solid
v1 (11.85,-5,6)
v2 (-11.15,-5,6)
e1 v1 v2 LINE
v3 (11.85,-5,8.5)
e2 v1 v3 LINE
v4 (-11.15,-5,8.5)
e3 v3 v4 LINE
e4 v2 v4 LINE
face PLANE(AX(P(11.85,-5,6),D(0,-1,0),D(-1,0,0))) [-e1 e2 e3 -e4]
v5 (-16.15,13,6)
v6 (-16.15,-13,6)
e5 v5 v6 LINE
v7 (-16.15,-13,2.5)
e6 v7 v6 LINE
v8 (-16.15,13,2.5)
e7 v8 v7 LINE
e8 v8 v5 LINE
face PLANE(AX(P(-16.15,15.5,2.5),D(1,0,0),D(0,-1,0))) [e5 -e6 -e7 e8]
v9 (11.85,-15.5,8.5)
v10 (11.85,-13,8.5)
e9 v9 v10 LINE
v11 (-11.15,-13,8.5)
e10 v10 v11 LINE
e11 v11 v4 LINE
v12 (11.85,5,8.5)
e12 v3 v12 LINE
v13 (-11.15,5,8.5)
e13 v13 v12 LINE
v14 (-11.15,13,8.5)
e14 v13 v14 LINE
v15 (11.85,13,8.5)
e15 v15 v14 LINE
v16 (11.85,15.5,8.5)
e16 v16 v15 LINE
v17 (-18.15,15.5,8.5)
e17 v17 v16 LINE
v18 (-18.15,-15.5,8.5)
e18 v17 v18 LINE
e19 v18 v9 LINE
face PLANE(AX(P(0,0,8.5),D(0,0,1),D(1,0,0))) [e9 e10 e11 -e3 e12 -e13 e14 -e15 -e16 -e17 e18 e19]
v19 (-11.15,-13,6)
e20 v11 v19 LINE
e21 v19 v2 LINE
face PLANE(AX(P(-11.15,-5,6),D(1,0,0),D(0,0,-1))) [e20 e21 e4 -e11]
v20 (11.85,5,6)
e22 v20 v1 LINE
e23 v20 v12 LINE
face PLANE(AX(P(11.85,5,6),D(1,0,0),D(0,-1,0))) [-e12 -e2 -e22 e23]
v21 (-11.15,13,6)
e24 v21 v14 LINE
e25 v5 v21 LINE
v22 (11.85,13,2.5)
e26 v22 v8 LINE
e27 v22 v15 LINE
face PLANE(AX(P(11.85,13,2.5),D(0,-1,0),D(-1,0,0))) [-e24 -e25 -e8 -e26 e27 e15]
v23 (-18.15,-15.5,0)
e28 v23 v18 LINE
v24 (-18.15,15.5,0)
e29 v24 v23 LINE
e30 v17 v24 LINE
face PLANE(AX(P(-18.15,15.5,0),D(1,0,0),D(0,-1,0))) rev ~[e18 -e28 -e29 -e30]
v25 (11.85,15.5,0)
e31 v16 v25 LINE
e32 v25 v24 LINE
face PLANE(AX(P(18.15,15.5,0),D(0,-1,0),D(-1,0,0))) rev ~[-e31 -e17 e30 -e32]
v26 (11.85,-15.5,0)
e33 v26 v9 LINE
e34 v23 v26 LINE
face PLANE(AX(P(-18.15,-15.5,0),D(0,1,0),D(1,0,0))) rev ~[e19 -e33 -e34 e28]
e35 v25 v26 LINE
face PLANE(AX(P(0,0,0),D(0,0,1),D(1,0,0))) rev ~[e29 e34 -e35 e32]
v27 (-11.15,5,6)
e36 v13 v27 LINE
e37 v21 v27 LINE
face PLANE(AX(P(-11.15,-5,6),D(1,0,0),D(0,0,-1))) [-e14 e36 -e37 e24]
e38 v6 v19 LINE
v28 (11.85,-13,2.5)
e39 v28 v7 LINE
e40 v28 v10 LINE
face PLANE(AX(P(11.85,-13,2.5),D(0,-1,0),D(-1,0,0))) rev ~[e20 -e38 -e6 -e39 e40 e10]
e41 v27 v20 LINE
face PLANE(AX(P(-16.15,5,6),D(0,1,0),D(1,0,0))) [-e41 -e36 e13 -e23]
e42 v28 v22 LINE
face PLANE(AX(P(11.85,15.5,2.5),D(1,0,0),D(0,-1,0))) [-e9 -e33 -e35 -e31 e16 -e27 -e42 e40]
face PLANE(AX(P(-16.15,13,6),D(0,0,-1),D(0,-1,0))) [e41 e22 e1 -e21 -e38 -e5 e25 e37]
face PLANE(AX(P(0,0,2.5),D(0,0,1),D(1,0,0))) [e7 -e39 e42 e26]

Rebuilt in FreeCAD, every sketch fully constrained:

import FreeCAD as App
import Part
import Sketcher

V = App.Vector
Q = App.Units.Quantity

doc = App.newDocument("Part")
body = doc.addObject("PartDesign::Body", "Body")

sketch1 = body.newObject("Sketcher::SketchObject", "Sketch")
sketch1.AttachmentSupport = (doc.getObject("XY_Plane"), [""])
sketch1.MapMode = "FlatFace"
sketch1.addGeometry(Part.LineSegment(V(-18, 16, 0), V(-18, -16, 0)), False)
sketch1.addGeometry(Part.LineSegment(V(-18, -16, 0), V(18, -16, 0)), False)
sketch1.addGeometry(Part.LineSegment(V(18, -16, 0), V(18, 16, 0)), False)
sketch1.addGeometry(Part.LineSegment(V(18, 16, 0), V(-18, 16, 0)), False)
sketch1.addConstraint(Sketcher.Constraint("Coincident", 0, 2, 1, 1))
sketch1.addConstraint(Sketcher.Constraint("Coincident", 1, 2, 2, 1))
sketch1.addConstraint(Sketcher.Constraint("Coincident", 2, 2, 3, 1))
sketch1.addConstraint(Sketcher.Constraint("Coincident", 3, 2, 0, 1))
sketch1.addConstraint(Sketcher.Constraint("Vertical", 0))
sketch1.addConstraint(Sketcher.Constraint("Horizontal", 1))
sketch1.addConstraint(Sketcher.Constraint("Vertical", 2))
sketch1.addConstraint(Sketcher.Constraint("Horizontal", 3))
sketch1.addConstraint(Sketcher.Constraint("Symmetric", 0, 2, 2, 2, -1, 1))
sketch1.addConstraint(Sketcher.Constraint("DistanceY", 0, 2, 0, 1, Q("31 mm")))
sketch1.addConstraint(Sketcher.Constraint("DistanceX", 1, 1, 1, 2, Q("36.3 mm")))
pad1 = body.newObject("PartDesign::Pad", "Pad")
pad1.Profile = sketch1
pad1.Length = 2.5

sketch2 = body.newObject("Sketcher::SketchObject", "Sketch001")
sketch2.AttachmentSupport = (doc.getObject("XY_Plane"), [""])
sketch2.MapMode = "FlatFace"
sketch2.AttachmentOffset = App.Placement(V(0, 0, 2.5), App.Rotation())
sketch2.addGeometry(Part.LineSegment(V(-18.1, -15.5, 0), V(-16.1, -15.5, 0)), False)
sketch2.addGeometry(Part.LineSegment(V(-16.1, -15.5, 0), V(-16.1, 15.5, 0)), False)
sketch2.addGeometry(Part.LineSegment(V(-16.1, 15.5, 0), V(-18.1, 15.5, 0)), False)
sketch2.addGeometry(Part.LineSegment(V(-18.1, 15.5, 0), V(-18.1, -15.5, 0)), False)
sketch2.addConstraint(Sketcher.Constraint("Coincident", 0, 2, 1, 1))
sketch2.addConstraint(Sketcher.Constraint("Coincident", 1, 2, 2, 1))
sketch2.addConstraint(Sketcher.Constraint("Coincident", 2, 2, 3, 1))
sketch2.addConstraint(Sketcher.Constraint("Coincident", 3, 2, 0, 1))
sketch2.addConstraint(Sketcher.Constraint("Horizontal", 0))
sketch2.addConstraint(Sketcher.Constraint("Vertical", 1))
sketch2.addConstraint(Sketcher.Constraint("Horizontal", 2))
sketch2.addConstraint(Sketcher.Constraint("Vertical", 3))
sketch2.addConstraint(Sketcher.Constraint("DistanceX", 0, 1, 0, 2, Q("2 mm")))
sketch2.addConstraint(Sketcher.Constraint("DistanceY", 1, 1, 1, 2, Q("31 mm")))
sketch2.addConstraint(Sketcher.Constraint("DistanceY", 0, 2, -1, 1, Q("15.5 mm")))
sketch2.addConstraint(Sketcher.Constraint("DistanceX", 0, 2, -1, 1, Q("16.15 mm")))
pad2 = body.newObject("PartDesign::Pad", "Pad001")
pad2.Profile = sketch2
pad2.Length = 3.5

sketch3 = body.newObject("Sketcher::SketchObject", "Sketch002")
sketch3.AttachmentSupport = (doc.getObject("XY_Plane"), [""])
sketch3.MapMode = "FlatFace"
sketch3.AttachmentOffset = App.Placement(V(0, 0, 6), App.Rotation())
sketch3.addGeometry(Part.LineSegment(V(-16.1, 5, 0), V(-16.1, 15.5, 0)), False)
sketch3.addGeometry(Part.LineSegment(V(-16.1, 15.5, 0), V(-18.1, 15.5, 0)), False)
sketch3.addGeometry(Part.LineSegment(V(-18.1, 15.5, 0), V(-18.1, -15.5, 0)), False)
sketch3.addGeometry(Part.LineSegment(V(-18.1, -15.5, 0), V(-16.1, -15.5, 0)), False)
sketch3.addGeometry(Part.LineSegment(V(-16.1, -15.5, 0), V(-16.1, -5, 0)), False)
sketch3.addGeometry(Part.LineSegment(V(-16.1, -5, 0), V(11.8, -5, 0)), False)
sketch3.addGeometry(Part.LineSegment(V(11.8, -5, 0), V(11.8, 5, 0)), False)
sketch3.addGeometry(Part.LineSegment(V(11.8, 5, 0), V(-16.1, 5, 0)), False)
sketch3.addConstraint(Sketcher.Constraint("Coincident", 0, 2, 1, 1))
sketch3.addConstraint(Sketcher.Constraint("Coincident", 1, 2, 2, 1))
sketch3.addConstraint(Sketcher.Constraint("Coincident", 2, 2, 3, 1))
sketch3.addConstraint(Sketcher.Constraint("Coincident", 3, 2, 4, 1))
sketch3.addConstraint(Sketcher.Constraint("Coincident", 4, 2, 5, 1))
sketch3.addConstraint(Sketcher.Constraint("Coincident", 5, 2, 6, 1))
sketch3.addConstraint(Sketcher.Constraint("Coincident", 6, 2, 7, 1))
sketch3.addConstraint(Sketcher.Constraint("Coincident", 7, 2, 0, 1))
sketch3.addConstraint(Sketcher.Constraint("Vertical", 0))
sketch3.addConstraint(Sketcher.Constraint("Horizontal", 1))
sketch3.addConstraint(Sketcher.Constraint("Vertical", 2))
sketch3.addConstraint(Sketcher.Constraint("Horizontal", 3))
sketch3.addConstraint(Sketcher.Constraint("Vertical", 4))
sketch3.addConstraint(Sketcher.Constraint("Horizontal", 5))
sketch3.addConstraint(Sketcher.Constraint("Vertical", 6))
sketch3.addConstraint(Sketcher.Constraint("Horizontal", 7))
sketch3.addConstraint(Sketcher.Constraint("Symmetric", 0, 2, 3, 2, -1))
sketch3.addConstraint(Sketcher.Constraint("Equal", 0, 4))
sketch3.addConstraint(Sketcher.Constraint("DistanceY", 6, 1, 6, 2, Q("10 mm")))
sketch3.addConstraint(Sketcher.Constraint("DistanceX", 2, 2, 5, 2, Q("30 mm")))
sketch3.addConstraint(Sketcher.Constraint("DistanceX", 1, 2, 1, 1, Q("2 mm")))
sketch3.addConstraint(Sketcher.Constraint("DistanceY", 2, 2, 2, 1, Q("31 mm")))
sketch3.addConstraint(Sketcher.Constraint("DistanceX", 0, 2, -1, 1, Q("16.15 mm")))
pad3 = body.newObject("PartDesign::Pad", "Pad002")
pad3.Profile = sketch3
pad3.Length = 2.5

sketch4 = body.newObject("Sketcher::SketchObject", "Sketch003")
sketch4.AttachmentSupport = (doc.getObject("XY_Plane"), [""])
sketch4.MapMode = "FlatFace"
sketch4.AttachmentOffset = App.Placement(V(0, 0, 2.5), App.Rotation())
sketch4.addGeometry(Part.LineSegment(V(11.8, 15.5, 0), V(-16.1, 15.5, 0)), False)
sketch4.addGeometry(Part.LineSegment(V(-16.1, 15.5, 0), V(-16.1, 13, 0)), False)
sketch4.addGeometry(Part.LineSegment(V(-16.1, 13, 0), V(11.8, 13, 0)), False)
sketch4.addGeometry(Part.LineSegment(V(11.8, 13, 0), V(11.8, 15.5, 0)), False)
sketch4.addGeometry(Part.LineSegment(V(11.8, -13, 0), V(-16.1, -13, 0)), False)
sketch4.addGeometry(Part.LineSegment(V(-16.1, -13, 0), V(-16.1, -15.5, 0)), False)
sketch4.addGeometry(Part.LineSegment(V(-16.1, -15.5, 0), V(11.8, -15.5, 0)), False)
sketch4.addGeometry(Part.LineSegment(V(11.8, -15.5, 0), V(11.8, -13, 0)), False)
sketch4.addConstraint(Sketcher.Constraint("Coincident", 0, 2, 1, 1))
sketch4.addConstraint(Sketcher.Constraint("Coincident", 1, 2, 2, 1))
sketch4.addConstraint(Sketcher.Constraint("Coincident", 2, 2, 3, 1))
sketch4.addConstraint(Sketcher.Constraint("Coincident", 3, 2, 0, 1))
sketch4.addConstraint(Sketcher.Constraint("Coincident", 4, 2, 5, 1))
sketch4.addConstraint(Sketcher.Constraint("Coincident", 5, 2, 6, 1))
sketch4.addConstraint(Sketcher.Constraint("Coincident", 6, 2, 7, 1))
sketch4.addConstraint(Sketcher.Constraint("Coincident", 7, 2, 4, 1))
sketch4.addConstraint(Sketcher.Constraint("Horizontal", 0))
sketch4.addConstraint(Sketcher.Constraint("Vertical", 1))
sketch4.addConstraint(Sketcher.Constraint("Horizontal", 2))
sketch4.addConstraint(Sketcher.Constraint("Vertical", 3))
sketch4.addConstraint(Sketcher.Constraint("Horizontal", 4))
sketch4.addConstraint(Sketcher.Constraint("Vertical", 5))
sketch4.addConstraint(Sketcher.Constraint("Horizontal", 6))
sketch4.addConstraint(Sketcher.Constraint("Vertical", 7))
sketch4.addConstraint(Sketcher.Constraint("Symmetric", 1, 2, 4, 2, -1))
sketch4.addConstraint(Sketcher.Constraint("Symmetric", 3, 2, 6, 2, -1))
sketch4.addConstraint(Sketcher.Constraint("DistanceY", 1, 2, 1, 1, Q("2.5 mm")))
sketch4.addConstraint(Sketcher.Constraint("DistanceX", 0, 2, 0, 1, Q("28 mm")))
sketch4.addConstraint(Sketcher.Constraint("DistanceY", -1, 1, 1, 2, Q("13 mm")))
sketch4.addConstraint(Sketcher.Constraint("DistanceX", 0, 2, -1, 1, Q("16.15 mm")))
pad4 = body.newObject("PartDesign::Pad", "Pad003")
pad4.Profile = sketch4
pad4.Length = 6

sketch5 = body.newObject("Sketcher::SketchObject", "Sketch004")
sketch5.AttachmentSupport = (doc.getObject("XY_Plane"), [""])
sketch5.MapMode = "FlatFace"
sketch5.AttachmentOffset = App.Placement(V(0, 0, 2.5), App.Rotation())
sketch5.addGeometry(Part.LineSegment(V(12, 16, 0), V(12, -16, 0)), False)
sketch5.addGeometry(Part.LineSegment(V(12, -16, 0), V(18, -16, 0)), False)
sketch5.addGeometry(Part.LineSegment(V(18, -16, 0), V(18, 16, 0)), False)
sketch5.addGeometry(Part.LineSegment(V(18, 16, 0), V(12, 16, 0)), False)
sketch5.addConstraint(Sketcher.Constraint("Coincident", 0, 2, 1, 1))
sketch5.addConstraint(Sketcher.Constraint("Coincident", 1, 2, 2, 1))
sketch5.addConstraint(Sketcher.Constraint("Coincident", 2, 2, 3, 1))
sketch5.addConstraint(Sketcher.Constraint("Coincident", 3, 2, 0, 1))
sketch5.addConstraint(Sketcher.Constraint("Vertical", 0))
sketch5.addConstraint(Sketcher.Constraint("Horizontal", 1))
sketch5.addConstraint(Sketcher.Constraint("Vertical", 2))
sketch5.addConstraint(Sketcher.Constraint("Horizontal", 3))
sketch5.addConstraint(Sketcher.Constraint("DistanceY", 0, 2, 0, 1, Q("31 mm")))
sketch5.addConstraint(Sketcher.Constraint("DistanceX", 1, 1, 1, 2, Q("6.3 mm")))
sketch5.addConstraint(Sketcher.Constraint("DistanceY", 0, 2, -1, 1, Q("15.5 mm")))
sketch5.addConstraint(Sketcher.Constraint("DistanceX", -1, 1, 0, 2, Q("11.85 mm")))
pocket1 = body.newObject("PartDesign::Pocket", "Pocket")
pocket1.Profile = sketch5
pocket1.Length = 2.5

sketch6 = body.newObject("Sketcher::SketchObject", "Sketch005")
sketch6.AttachmentSupport = (doc.getObject("YZ_Plane"), [""])
sketch6.MapMode = "FlatFace"
sketch6.AttachmentOffset = App.Placement(V(0, 0, -16.15), App.Rotation())
sketch6.addGeometry(Part.LineSegment(V(-13, 6, 0), V(-5, 6, 0)), False)
sketch6.addGeometry(Part.LineSegment(V(-5, 6, 0), V(-5, 8.5, 0)), False)
sketch6.addGeometry(Part.LineSegment(V(-5, 8.5, 0), V(-13, 8.5, 0)), False)
sketch6.addGeometry(Part.LineSegment(V(-13, 8.5, 0), V(-13, 6, 0)), False)
sketch6.addGeometry(Part.LineSegment(V(5, 8.5, 0), V(5, 6, 0)), False)
sketch6.addGeometry(Part.LineSegment(V(5, 6, 0), V(13, 6, 0)), False)
sketch6.addGeometry(Part.LineSegment(V(13, 6, 0), V(13, 8.5, 0)), False)
sketch6.addGeometry(Part.LineSegment(V(13, 8.5, 0), V(5, 8.5, 0)), False)
sketch6.addConstraint(Sketcher.Constraint("Coincident", 0, 2, 1, 1))
sketch6.addConstraint(Sketcher.Constraint("Coincident", 1, 2, 2, 1))
sketch6.addConstraint(Sketcher.Constraint("Coincident", 2, 2, 3, 1))
sketch6.addConstraint(Sketcher.Constraint("Coincident", 3, 2, 0, 1))
sketch6.addConstraint(Sketcher.Constraint("Coincident", 4, 2, 5, 1))
sketch6.addConstraint(Sketcher.Constraint("Coincident", 5, 2, 6, 1))
sketch6.addConstraint(Sketcher.Constraint("Coincident", 6, 2, 7, 1))
sketch6.addConstraint(Sketcher.Constraint("Coincident", 7, 2, 4, 1))
sketch6.addConstraint(Sketcher.Constraint("Horizontal", 0))
sketch6.addConstraint(Sketcher.Constraint("Vertical", 1))
sketch6.addConstraint(Sketcher.Constraint("Horizontal", 2))
sketch6.addConstraint(Sketcher.Constraint("Vertical", 3))
sketch6.addConstraint(Sketcher.Constraint("Vertical", 4))
sketch6.addConstraint(Sketcher.Constraint("Horizontal", 5))
sketch6.addConstraint(Sketcher.Constraint("Vertical", 6))
sketch6.addConstraint(Sketcher.Constraint("Horizontal", 7))
sketch6.addConstraint(Sketcher.Constraint("Symmetric", 0, 2, 4, 2, -2))
sketch6.addConstraint(Sketcher.Constraint("Symmetric", 2, 2, 6, 2, -2))
sketch6.addConstraint(Sketcher.Constraint("DistanceX", 0, 1, 0, 2, Q("8 mm")))
sketch6.addConstraint(Sketcher.Constraint("DistanceY", 1, 1, 1, 2, Q("2.5 mm")))
sketch6.addConstraint(Sketcher.Constraint("DistanceX", 0, 2, -1, 1, Q("5 mm")))
sketch6.addConstraint(Sketcher.Constraint("DistanceY", -1, 1, 0, 2, Q("6 mm")))
pad5 = body.newObject("PartDesign::Pad", "Pad004")
pad5.Profile = sketch6
pad5.Length = 5

doc.recompute()
